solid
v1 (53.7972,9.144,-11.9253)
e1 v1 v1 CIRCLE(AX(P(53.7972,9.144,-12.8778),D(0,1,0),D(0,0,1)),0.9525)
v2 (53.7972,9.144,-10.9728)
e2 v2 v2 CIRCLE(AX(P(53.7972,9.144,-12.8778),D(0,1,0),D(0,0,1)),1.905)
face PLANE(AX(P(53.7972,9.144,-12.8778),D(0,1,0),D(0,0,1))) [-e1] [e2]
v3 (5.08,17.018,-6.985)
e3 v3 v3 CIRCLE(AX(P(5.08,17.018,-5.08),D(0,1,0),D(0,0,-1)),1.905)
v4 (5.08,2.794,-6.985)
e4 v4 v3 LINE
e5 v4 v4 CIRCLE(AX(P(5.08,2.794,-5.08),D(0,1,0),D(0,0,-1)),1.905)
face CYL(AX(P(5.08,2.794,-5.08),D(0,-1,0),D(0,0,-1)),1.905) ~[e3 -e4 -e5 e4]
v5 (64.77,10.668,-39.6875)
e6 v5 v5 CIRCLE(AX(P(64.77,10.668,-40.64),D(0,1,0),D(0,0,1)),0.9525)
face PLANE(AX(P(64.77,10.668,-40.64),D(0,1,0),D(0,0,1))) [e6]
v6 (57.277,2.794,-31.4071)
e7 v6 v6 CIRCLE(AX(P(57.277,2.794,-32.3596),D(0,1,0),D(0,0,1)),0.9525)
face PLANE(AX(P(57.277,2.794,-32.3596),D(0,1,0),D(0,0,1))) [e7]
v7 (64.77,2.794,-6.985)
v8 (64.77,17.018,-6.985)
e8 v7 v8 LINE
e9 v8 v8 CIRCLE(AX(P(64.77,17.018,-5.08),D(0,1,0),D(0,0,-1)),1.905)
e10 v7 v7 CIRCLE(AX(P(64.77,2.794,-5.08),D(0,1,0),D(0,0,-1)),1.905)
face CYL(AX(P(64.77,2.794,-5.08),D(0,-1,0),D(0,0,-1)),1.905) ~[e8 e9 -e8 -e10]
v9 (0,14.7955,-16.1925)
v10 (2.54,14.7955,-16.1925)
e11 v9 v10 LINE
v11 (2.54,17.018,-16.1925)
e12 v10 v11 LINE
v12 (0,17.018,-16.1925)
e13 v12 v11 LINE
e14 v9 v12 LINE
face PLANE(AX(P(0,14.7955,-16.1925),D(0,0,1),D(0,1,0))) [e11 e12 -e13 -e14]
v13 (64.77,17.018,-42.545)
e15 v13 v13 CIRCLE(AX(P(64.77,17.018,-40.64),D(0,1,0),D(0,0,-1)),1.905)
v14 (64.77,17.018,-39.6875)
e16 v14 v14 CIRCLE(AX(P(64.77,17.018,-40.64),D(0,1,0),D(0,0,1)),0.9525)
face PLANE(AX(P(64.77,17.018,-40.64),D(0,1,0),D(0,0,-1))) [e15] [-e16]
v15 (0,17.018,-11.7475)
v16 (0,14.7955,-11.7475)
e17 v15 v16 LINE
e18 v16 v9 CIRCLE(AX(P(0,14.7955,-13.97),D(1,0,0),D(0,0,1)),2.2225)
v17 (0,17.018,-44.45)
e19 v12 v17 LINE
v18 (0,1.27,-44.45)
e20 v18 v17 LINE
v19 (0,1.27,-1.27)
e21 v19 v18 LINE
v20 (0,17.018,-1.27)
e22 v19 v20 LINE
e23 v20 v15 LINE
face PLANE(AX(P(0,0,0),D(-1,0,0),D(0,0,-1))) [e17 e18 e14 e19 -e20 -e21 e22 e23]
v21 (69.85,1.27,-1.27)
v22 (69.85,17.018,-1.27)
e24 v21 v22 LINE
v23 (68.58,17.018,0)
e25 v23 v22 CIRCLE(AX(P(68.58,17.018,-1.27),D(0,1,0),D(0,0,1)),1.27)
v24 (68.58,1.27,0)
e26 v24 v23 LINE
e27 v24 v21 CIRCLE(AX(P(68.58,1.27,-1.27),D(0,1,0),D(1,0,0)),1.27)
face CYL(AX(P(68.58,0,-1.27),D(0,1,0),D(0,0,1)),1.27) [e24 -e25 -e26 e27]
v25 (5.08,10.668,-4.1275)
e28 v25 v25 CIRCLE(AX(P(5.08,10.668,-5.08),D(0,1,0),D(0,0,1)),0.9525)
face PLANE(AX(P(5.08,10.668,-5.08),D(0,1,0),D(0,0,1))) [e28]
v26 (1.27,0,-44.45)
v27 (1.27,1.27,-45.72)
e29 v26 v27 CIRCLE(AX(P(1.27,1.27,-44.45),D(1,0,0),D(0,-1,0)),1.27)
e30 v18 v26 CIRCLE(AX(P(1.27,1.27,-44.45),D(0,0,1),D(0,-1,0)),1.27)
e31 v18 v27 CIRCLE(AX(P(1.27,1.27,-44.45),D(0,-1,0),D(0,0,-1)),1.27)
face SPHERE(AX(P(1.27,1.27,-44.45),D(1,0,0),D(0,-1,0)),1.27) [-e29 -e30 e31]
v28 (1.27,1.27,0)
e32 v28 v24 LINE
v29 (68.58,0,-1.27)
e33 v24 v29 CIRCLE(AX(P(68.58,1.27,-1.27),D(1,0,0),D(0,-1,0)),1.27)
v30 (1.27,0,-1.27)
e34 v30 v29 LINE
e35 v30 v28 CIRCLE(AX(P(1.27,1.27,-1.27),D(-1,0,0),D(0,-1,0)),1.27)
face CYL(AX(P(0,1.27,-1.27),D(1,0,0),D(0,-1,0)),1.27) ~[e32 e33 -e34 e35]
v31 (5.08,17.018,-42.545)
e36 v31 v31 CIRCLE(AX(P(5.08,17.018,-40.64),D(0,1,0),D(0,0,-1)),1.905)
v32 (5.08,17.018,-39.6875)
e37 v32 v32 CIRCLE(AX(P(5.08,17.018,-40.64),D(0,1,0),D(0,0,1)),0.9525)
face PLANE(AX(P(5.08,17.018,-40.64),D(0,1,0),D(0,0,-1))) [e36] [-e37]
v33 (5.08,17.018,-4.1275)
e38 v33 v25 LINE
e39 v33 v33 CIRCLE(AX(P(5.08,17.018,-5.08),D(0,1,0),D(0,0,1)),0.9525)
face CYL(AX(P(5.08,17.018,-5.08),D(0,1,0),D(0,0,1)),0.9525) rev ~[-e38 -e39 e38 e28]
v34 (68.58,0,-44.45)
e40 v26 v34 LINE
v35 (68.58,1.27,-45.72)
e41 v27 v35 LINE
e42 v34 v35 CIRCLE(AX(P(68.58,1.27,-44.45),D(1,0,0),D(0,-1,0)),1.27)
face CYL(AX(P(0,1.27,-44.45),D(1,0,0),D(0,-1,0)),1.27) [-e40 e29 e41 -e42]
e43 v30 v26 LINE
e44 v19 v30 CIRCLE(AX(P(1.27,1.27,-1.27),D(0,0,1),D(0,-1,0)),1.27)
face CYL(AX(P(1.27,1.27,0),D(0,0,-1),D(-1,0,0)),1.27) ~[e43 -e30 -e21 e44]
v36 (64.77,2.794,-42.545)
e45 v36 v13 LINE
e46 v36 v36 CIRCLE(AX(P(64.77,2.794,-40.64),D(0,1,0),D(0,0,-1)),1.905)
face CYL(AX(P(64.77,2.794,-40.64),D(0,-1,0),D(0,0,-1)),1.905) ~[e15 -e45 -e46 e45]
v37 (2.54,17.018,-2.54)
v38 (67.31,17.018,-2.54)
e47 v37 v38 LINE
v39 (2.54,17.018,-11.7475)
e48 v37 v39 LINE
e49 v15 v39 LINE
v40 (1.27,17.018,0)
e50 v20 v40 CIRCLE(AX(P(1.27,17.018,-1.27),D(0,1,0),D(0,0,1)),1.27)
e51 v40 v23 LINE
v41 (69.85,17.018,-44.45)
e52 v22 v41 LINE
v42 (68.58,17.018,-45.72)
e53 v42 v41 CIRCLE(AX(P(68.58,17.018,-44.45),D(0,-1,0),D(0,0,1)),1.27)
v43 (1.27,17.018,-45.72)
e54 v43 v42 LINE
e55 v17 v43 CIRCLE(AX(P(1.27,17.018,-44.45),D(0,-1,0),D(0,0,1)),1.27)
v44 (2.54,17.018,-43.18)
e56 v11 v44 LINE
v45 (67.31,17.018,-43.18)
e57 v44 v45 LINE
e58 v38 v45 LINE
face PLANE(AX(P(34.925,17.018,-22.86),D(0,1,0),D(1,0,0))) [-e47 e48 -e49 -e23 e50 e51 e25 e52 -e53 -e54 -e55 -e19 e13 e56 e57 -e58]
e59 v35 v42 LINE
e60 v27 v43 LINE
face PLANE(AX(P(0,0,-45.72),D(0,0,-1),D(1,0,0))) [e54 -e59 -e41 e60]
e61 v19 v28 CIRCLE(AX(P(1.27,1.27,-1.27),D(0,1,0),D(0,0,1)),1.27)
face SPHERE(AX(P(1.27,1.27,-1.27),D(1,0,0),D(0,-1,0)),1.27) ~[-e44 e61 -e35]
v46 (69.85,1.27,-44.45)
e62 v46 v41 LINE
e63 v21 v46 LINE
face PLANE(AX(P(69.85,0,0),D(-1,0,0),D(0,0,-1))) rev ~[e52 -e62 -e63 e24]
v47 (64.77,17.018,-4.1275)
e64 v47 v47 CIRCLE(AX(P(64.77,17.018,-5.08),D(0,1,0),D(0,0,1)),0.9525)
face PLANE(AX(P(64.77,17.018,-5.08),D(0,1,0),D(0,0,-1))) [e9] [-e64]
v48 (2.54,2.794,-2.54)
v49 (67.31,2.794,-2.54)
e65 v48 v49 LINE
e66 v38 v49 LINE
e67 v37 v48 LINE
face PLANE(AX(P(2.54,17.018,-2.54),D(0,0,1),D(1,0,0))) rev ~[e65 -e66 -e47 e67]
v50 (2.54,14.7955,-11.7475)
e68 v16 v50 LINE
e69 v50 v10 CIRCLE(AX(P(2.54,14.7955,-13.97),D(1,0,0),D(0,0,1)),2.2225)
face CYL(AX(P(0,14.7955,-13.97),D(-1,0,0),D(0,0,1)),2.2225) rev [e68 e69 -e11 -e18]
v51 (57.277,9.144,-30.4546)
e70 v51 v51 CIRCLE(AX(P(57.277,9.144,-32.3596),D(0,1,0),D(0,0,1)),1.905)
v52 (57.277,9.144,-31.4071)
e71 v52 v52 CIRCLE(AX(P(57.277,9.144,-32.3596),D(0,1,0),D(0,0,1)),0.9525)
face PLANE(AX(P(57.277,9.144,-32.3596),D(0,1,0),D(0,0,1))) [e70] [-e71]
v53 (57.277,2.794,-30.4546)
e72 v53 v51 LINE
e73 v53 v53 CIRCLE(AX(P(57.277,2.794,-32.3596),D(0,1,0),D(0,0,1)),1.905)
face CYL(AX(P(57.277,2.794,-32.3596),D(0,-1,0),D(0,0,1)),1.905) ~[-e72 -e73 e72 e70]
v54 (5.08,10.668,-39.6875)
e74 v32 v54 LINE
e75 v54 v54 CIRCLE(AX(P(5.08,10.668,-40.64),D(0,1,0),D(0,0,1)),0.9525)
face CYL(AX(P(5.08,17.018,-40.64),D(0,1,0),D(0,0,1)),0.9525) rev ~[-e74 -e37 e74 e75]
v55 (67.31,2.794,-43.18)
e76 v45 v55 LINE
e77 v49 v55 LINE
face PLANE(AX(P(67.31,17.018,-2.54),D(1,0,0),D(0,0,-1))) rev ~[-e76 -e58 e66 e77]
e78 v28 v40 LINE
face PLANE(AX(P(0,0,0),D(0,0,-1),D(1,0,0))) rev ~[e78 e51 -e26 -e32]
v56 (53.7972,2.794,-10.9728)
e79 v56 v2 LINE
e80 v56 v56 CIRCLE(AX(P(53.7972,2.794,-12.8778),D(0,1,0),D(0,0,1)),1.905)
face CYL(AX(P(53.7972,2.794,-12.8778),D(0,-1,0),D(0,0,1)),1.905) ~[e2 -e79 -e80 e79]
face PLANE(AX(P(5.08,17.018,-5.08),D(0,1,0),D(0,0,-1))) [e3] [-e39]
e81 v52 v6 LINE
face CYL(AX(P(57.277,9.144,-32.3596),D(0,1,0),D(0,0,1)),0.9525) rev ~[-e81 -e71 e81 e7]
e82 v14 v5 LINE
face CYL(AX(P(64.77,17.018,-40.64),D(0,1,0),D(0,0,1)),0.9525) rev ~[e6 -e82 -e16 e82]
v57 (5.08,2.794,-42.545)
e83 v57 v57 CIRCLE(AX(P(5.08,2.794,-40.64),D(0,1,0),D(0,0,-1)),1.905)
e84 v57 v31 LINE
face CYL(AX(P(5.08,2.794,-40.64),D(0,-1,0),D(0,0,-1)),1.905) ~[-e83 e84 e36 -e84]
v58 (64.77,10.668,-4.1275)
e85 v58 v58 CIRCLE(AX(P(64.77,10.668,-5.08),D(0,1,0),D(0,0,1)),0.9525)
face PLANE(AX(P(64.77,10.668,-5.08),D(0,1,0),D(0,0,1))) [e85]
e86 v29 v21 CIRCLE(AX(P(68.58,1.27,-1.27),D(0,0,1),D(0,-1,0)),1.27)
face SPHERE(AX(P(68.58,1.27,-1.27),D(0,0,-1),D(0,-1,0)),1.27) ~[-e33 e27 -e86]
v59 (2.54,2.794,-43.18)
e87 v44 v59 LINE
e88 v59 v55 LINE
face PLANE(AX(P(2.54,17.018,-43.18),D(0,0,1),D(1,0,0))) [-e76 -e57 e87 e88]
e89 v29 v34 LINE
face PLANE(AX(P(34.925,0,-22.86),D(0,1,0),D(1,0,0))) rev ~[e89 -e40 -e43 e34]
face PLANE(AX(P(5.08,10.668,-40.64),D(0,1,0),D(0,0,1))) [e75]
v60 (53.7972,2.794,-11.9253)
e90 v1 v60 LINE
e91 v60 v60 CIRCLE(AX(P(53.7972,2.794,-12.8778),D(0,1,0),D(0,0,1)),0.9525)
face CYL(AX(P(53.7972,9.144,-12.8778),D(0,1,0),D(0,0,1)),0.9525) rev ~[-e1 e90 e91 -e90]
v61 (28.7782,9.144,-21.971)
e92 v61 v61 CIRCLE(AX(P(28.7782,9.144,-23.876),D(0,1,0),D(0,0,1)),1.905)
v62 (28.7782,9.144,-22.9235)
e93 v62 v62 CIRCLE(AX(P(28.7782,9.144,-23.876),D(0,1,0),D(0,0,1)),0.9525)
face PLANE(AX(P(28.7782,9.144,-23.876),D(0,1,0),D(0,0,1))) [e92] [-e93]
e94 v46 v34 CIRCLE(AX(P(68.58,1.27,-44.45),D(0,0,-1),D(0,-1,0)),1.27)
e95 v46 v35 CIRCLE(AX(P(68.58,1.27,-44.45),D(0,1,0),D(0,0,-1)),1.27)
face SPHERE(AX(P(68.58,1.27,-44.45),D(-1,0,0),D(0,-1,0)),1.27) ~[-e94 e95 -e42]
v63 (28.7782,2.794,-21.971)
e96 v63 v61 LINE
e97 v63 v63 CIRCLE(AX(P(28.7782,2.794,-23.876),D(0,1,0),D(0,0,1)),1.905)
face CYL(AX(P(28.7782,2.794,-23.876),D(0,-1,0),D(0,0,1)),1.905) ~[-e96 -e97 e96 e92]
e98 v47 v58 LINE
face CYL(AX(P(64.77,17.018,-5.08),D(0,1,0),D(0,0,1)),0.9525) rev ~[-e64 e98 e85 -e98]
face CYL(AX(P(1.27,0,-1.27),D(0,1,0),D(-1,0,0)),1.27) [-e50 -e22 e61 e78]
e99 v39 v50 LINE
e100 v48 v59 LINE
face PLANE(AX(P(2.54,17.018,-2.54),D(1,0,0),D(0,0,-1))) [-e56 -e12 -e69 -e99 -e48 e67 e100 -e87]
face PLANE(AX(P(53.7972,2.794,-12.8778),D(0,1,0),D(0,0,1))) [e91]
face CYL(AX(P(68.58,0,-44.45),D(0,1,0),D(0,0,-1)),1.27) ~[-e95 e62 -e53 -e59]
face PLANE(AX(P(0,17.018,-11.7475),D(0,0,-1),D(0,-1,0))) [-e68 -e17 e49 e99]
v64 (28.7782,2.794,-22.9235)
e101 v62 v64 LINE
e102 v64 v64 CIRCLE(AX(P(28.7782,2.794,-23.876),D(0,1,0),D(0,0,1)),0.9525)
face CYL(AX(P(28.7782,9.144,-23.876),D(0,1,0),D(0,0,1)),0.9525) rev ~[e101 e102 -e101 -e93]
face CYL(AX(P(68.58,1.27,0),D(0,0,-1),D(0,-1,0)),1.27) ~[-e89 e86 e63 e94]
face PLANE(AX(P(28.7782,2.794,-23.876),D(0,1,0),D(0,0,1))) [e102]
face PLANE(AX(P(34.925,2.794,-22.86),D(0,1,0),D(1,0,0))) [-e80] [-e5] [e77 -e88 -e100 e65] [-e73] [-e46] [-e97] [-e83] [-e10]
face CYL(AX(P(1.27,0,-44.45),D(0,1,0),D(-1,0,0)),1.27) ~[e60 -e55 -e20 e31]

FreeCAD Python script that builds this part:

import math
import FreeCAD as App
import Part
import Sketcher

V = App.Vector
Q = App.Units.Quantity


def edges_at(feature, points):
    """Names of the edges that pass closest to the given points."""
    edges = feature.Shape.Edges
    near = lambda p: min(range(len(edges)), key=lambda i: edges[i].distToShape(Part.Vertex(*p))[0])
    return sorted({f"Edge{near(p) + 1}" for p in points})


def add_polygon(sketch, points):
    """Adds a closed chain of lines whose ends are joined by coincident constraints."""
    first, n = sketch.GeometryCount, len(points)
    for a, b in zip(points, points[1:] + points[:1]):
        sketch.addGeometry(Part.LineSegment(App.Vector(*a, 0), App.Vector(*b, 0)), False)
    for i in range(n):
        sketch.addConstraint(Sketcher.Constraint("Coincident", first + i, 2, first + (i + 1) % n, 1))

doc = App.newDocument("Part")
body = doc.addObject("PartDesign::Body", "Body")

sketch1 = body.newObject("Sketcher::SketchObject", "Sketch")
sketch1.AttachmentSupport = (doc.getObject("XZ_Plane"), [""])
sketch1.MapMode = "FlatFace"
add_polygon(sketch1, [(0, -46), (0, 0), (70, 0), (70, -46)])
sketch1.addConstraint(Sketcher.Constraint("Vertical", 0))
sketch1.addConstraint(Sketcher.Constraint("Horizontal", 1))
sketch1.addConstraint(Sketcher.Constraint("Vertical", 2))
sketch1.addConstraint(Sketcher.Constraint("Horizontal", 3))
sketch1.addConstraint(Sketcher.Constraint("Coincident", 0, 2, -1, 1))
sketch1.addConstraint(Sketcher.Constraint("DistanceY", 0, 1, 0, 2, Q("1.8 in")))
sketch1.addConstraint(Sketcher.Constraint("DistanceX", 1, 1, 1, 2, Q("2.75 in")))
pad1 = body.newObject("PartDesign::Pad", "Pad")
pad1.Profile = sketch1
pad1.Length = Q("0.67 in")
pad1.Reversed = True

sketch2 = body.newObject("Sketcher::SketchObject", "Sketch001")
sketch2.AttachmentSupport = (doc.getObject("XZ_Plane"), [""])
sketch2.MapMode = "FlatFace"
sketch2.AttachmentOffset = App.Placement(V(0, 0, -0.67 * 25.4), App.Rotation())
add_polygon(sketch2, [(3, -43), (3, -3), (67, -3), (67, -43)])
sketch2.addConstraint(Sketcher.Constraint("Vertical", 0))
sketch2.addConstraint(Sketcher.Constraint("Horizontal", 1))
sketch2.addConstraint(Sketcher.Constraint("Vertical", 2))
sketch2.addConstraint(Sketcher.Constraint("Horizontal", 3))
sketch2.addConstraint(Sketcher.Constraint("DistanceY", 0, 1, 0, 2, Q("1.6 in")))
sketch2.addConstraint(Sketcher.Constraint("DistanceX", 1, 1, 1, 2, Q("2.55 in")))
sketch2.addConstraint(Sketcher.Constraint("DistanceX", -1, 1, 0, 2, Q("0.1 in")))
sketch2.addConstraint(Sketcher.Constraint("DistanceY", 0, 2, -1, 1, Q("0.1 in")))
pocket1 = body.newObject("PartDesign::Pocket", "Pocket")
pocket1.Profile = sketch2
pocket1.Length = Q("0.56 in")
pocket1.Reversed = True

sketch3 = body.newObject("Sketcher::SketchObject", "Sketch002")
sketch3.AttachmentSupport = (doc.getObject("XZ_Plane"), [""])
sketch3.MapMode = "FlatFace"
sketch3.AttachmentOffset = App.Placement(V(0, 0, -0.11 * 25.4), App.Rotation())
sketch3.addGeometry(Part.Circle(V(57.3, -32.4, 0), V(0, 0, 1), 1.9), False)
sketch3.addGeometry(Part.Circle(V(53.8, -12.9, 0), V(0, 0, 1), 1.9), False)
sketch3.addGeometry(Part.Circle(V(28.8, -23.9, 0), V(0, 0, 1), 1.9), False)
sketch3.addConstraint(Sketcher.Constraint("Equal", 0, 1))
sketch3.addConstraint(Sketcher.Constraint("Equal", 1, 2))
sketch3.addConstraint(Sketcher.Constraint("Diameter", 0, Q("0.15 in")))
sketch3.addConstraint(Sketcher.Constraint("DistanceY", 2, 3, -1, 1, Q("0.94 in")))
sketch3.addConstraint(Sketcher.Constraint("DistanceX", -1, 1, 0, 3, Q("2.255 in")))
sketch3.addConstraint(Sketcher.Constraint("DistanceY", 0, 3, -1, 1, Q("1.274 in")))
sketch3.addConstraint(Sketcher.Constraint("DistanceX", -1, 1, 1, 3, Q("2.118 in")))
sketch3.addConstraint(Sketcher.Constraint("DistanceY", 1, 3, -1, 1, Q("0.507 in")))
sketch3.addConstraint(Sketcher.Constraint("DistanceX", -1, 1, 2, 3, Q("1.133 in")))
pad2 = body.newObject("PartDesign::Pad", "Pad001")
pad2.Profile = sketch3
pad2.Length = Q("0.25 in")
pad2.Reversed = True

sketch4 = body.newObject("Sketcher::SketchObject", "Sketch003")
sketch4.AttachmentSupport = (doc.getObject("XZ_Plane"), [""])
sketch4.MapMode = "FlatFace"
sketch4.AttachmentOffset = App.Placement(V(0, 0, -0.36 * 25.4), App.Rotation())
sketch4.addGeometry(Part.Circle(V(57.3, -32.4, 0), V(0, 0, 1), 1), False)
sketch4.addGeometry(Part.Circle(V(53.8, -12.9, 0), V(0, 0, 1), 1), False)
sketch4.addGeometry(Part.Circle(V(28.8, -23.9, 0), V(0, 0, 1), 1), False)
sketch4.addConstraint(Sketcher.Constraint("Equal", 0, 1))
sketch4.addConstraint(Sketcher.Constraint("Equal", 1, 2))
sketch4.addConstraint(Sketcher.Constraint("Diameter", 0, Q("0.075 in")))
sketch4.addConstraint(Sketcher.Constraint("DistanceY", 2, 3, -1, 1, Q("0.94 in")))
sketch4.addConstraint(Sketcher.Constraint("DistanceX", -1, 1, 0, 3, Q("2.255 in")))
sketch4.addConstraint(Sketcher.Constraint("DistanceY", 0, 3, -1, 1, Q("1.274 in")))
sketch4.addConstraint(Sketcher.Constraint("DistanceX", -1, 1, 1, 3, Q("2.118 in")))
sketch4.addConstraint(Sketcher.Constraint("DistanceY", 1, 3, -1, 1, Q("0.507 in")))
sketch4.addConstraint(Sketcher.Constraint("DistanceX", -1, 1, 2, 3, Q("1.133 in")))
pocket2 = body.newObject("PartDesign::Pocket", "Pocket001")
pocket2.Profile = sketch4
pocket2.Length = Q("0.25 in")
pocket2.Reversed = True

sketch5 = body.newObject("Sketcher::SketchObject", "Sketch004")
sketch5.AttachmentSupport = (doc.getObject("YZ_Plane"), [""])
sketch5.MapMode = "FlatFace"
sketch5.addGeometry(Part.LineSegment(V(17, -16.2, 0), V(14.8, -16.2, 0)), False)
sketch5.addGeometry(Part.ArcOfCircle(Part.Circle(V(14.8, -14, 0), V(0, 0, 1), 2.2), math.radians(90), math.radians(270)), False)
sketch5.addGeometry(Part.LineSegment(V(14.8, -11.7, 0), V(17, -11.7, 0)), False)
sketch5.addGeometry(Part.LineSegment(V(17, -11.7, 0), V(17, -16.2, 0)), False)
sketch5.addConstraint(Sketcher.Constraint("Tangent", 0, 2, 1, 2))
sketch5.addConstraint(Sketcher.Constraint("Tangent", 1, 1, 2, 1))
sketch5.addConstraint(Sketcher.Constraint("Coincident", 2, 2, 3, 1))
sketch5.addConstraint(Sketcher.Constraint("Coincident", 3, 2, 0, 1))
sketch5.addConstraint(Sketcher.Constraint("Horizontal", 0))
sketch5.addConstraint(Sketcher.Constraint("Horizontal", 2))
sketch5.addConstraint(Sketcher.Constraint("Vertical", 3))
sketch5.addConstraint(Sketcher.Constraint("Radius", 1, Q("0.0875 in")))
sketch5.addConstraint(Sketcher.Constraint("DistanceY", 1, 3, -1, 1, Q("0.55 in")))
sketch5.addConstraint(Sketcher.Constraint("DistanceX", -1, 1, 2, 2, Q("0.67 in")))
sketch5.addConstraint(Sketcher.Constraint("DistanceX", 0, 2, 0, 1, Q("0.0875 in")))
pocket3 = body.newObject("PartDesign::Pocket", "Pocket002")
pocket3.Profile = sketch5
pocket3.Length = Q("0.1 in")
pocket3.Reversed = True
doc.recompute()

fillet = body.newObject("PartDesign::Fillet", "Fillet")
fillet.Base = (pocket3, edges_at(pocket3, [
    (34.925, 0, -45.72),
    (69.85, 0, -22.86),
    (34.925, 0, 0),
    (0, 0, -22.86),
    (0, 8.509, -45.72),
    (69.85, 8.509, -45.72),
    (69.85, 8.509, 0),
    (0, 8.509, 0),
]))
fillet.Radius = Q("0.05 in")

sketch6 = body.newObject("Sketcher::SketchObject", "Sketch005")
sketch6.AttachmentSupport = (doc.getObject("XZ_Plane"), [""])
sketch6.MapMode = "FlatFace"
sketch6.AttachmentOffset = App.Placement(V(0, 0, -0.11 * 25.4), App.Rotation())
sketch6.addGeometry(Part.Circle(V(5.1, -40.6, 0), V(0, 0, 1), 1.9), False)
sketch6.addGeometry(Part.Circle(V(64.8, -40.6, 0), V(0, 0, 1), 1.9), False)
sketch6.addGeometry(Part.Circle(V(5.1, -5.1, 0), V(0, 0, 1), 1.9), False)
sketch6.addGeometry(Part.Circle(V(64.8, -5.1, 0), V(0, 0, 1), 1.9), False)
sketch6.addConstraint(Sketcher.Constraint("Equal", 0, 1))
sketch6.addConstraint(Sketcher.Constraint("Equal", 1, 2))
sketch6.addConstraint(Sketcher.Constraint("Equal", 2, 3))
sketch6.addConstraint(Sketcher.Constraint("Horizontal", 0, 3, 1, 3))
sketch6.addConstraint(Sketcher.Constraint("Horizontal", 2, 3, 3, 3))
sketch6.addConstraint(Sketcher.Constraint("Vertical", 0, 3, 2, 3))
sketch6.addConstraint(Sketcher.Constraint("Vertical", 1, 3, 3, 3))
sketch6.addConstraint(Sketcher.Constraint("Diameter", 0, Q("0.15 in")))
sketch6.addConstraint(Sketcher.Constraint("DistanceX", -1, 1, 0, 3, Q("0.2 in")))
sketch6.addConstraint(Sketcher.Constraint("DistanceY", 0, 3, -1, 1, Q("1.6 in")))
sketch6.addConstraint(Sketcher.Constraint("DistanceY", 2, 3, -1, 1, Q("0.2 in")))
sketch6.addConstraint(Sketcher.Constraint("DistanceX", -1, 1, 1, 3, Q("2.55 in")))
pad3 = body.newObject("PartDesign::Pad", "Pad002")
pad3.Profile = sketch6
pad3.Length = Q("0.56 in")
pad3.Reversed = True

sketch7 = body.newObject("Sketcher::SketchObject", "Sketch006")
sketch7.AttachmentSupport = (doc.getObject("XZ_Plane"), [""])
sketch7.MapMode = "FlatFace"
sketch7.AttachmentOffset = App.Placement(V(0, 0, -0.67 * 25.4), App.Rotation())
sketch7.addGeometry(Part.Circle(V(5.1, -40.6, 0), V(0, 0, 1), 1), False)
sketch7.addGeometry(Part.Circle(V(64.8, -40.6, 0), V(0, 0, 1), 1), False)
sketch7.addGeometry(Part.Circle(V(64.8, -5.1, 0), V(0, 0, 1), 1), False)
sketch7.addGeometry(Part.Circle(V(5.1, -5.1, 0), V(0, 0, 1), 1), False)
sketch7.addConstraint(Sketcher.Constraint("Equal", 0, 1))
sketch7.addConstraint(Sketcher.Constraint("Equal", 1, 2))
sketch7.addConstraint(Sketcher.Constraint("Equal", 2, 3))
sketch7.addConstraint(Sketcher.Constraint("Horizontal", 0, 3, 1, 3))
sketch7.addConstraint(Sketcher.Constraint("Horizontal", 2, 3, 3, 3))
sketch7.addConstraint(Sketcher.Constraint("Vertical", 1, 3, 2, 3))
sketch7.addConstraint(Sketcher.Constraint("Vertical", 0, 3, 3, 3))
sketch7.addConstraint(Sketcher.Constraint("Diameter", 0, Q("0.075 in")))
sketch7.addConstraint(Sketcher.Constraint("DistanceX", -1, 1, 0, 3, Q("0.2 in")))
sketch7.addConstraint(Sketcher.Constraint("DistanceY", 0, 3, -1, 1, Q("1.6 in")))
sketch7.addConstraint(Sketcher.Constraint("DistanceY", 2, 3, -1, 1, Q("0.2 in")))
sketch7.addConstraint(Sketcher.Constraint("DistanceX", -1, 1, 1, 3, Q("2.55 in")))
pocket4 = body.newObject("PartDesign::Pocket", "Pocket003")
pocket4.Profile = sketch7
pocket4.Length = Q("0.25 in")
pocket4.Reversed = True

doc.recompute()
